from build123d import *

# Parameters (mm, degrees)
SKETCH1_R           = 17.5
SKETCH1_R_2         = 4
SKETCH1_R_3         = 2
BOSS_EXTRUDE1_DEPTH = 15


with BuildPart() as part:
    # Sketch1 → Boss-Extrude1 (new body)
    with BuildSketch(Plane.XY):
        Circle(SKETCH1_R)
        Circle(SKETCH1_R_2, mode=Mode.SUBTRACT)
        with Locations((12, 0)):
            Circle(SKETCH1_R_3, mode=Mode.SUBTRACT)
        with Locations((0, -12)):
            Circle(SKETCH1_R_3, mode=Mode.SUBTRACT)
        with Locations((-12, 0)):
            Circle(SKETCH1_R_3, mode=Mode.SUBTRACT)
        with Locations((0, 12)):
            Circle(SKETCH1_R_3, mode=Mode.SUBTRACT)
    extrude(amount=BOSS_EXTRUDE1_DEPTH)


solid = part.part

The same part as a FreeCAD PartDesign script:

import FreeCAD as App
import Part
import Sketcher
from FreeCAD import Vector
Q = App.Units.Quantity

doc = App.newDocument("Part")
body = doc.addObject("PartDesign::Body", "Body")

# Sketch on XY plane
sketch1 = body.newObject("Sketcher::SketchObject", "Sketch")
sketch1.AttachmentSupport = (doc.getObject("XY_Plane"), [""])
sketch1.MapMode = "FlatFace"
sketch1.addGeometry([
    Part.Circle(Vector(0, 0, 0), Vector(0, 0, 1), 17.5),  # 0
    Part.Circle(Vector(0, -12, 0), Vector(0, 0, 1), 2),  # 1
    Part.Circle(Vector(-12, 0, 0), Vector(0, 0, 1), 2),  # 2
    Part.Circle(Vector(0, 0, 0), Vector(0, 0, 1), 4),  # 3
    Part.Circle(Vector(12, 0, 0), Vector(0, 0, 1), 2),  # 4
    Part.Circle(Vector(0, 12, 0), Vector(0, 0, 1), 2),  # 5
], False)
sketch1.addConstraint([
    Sketcher.Constraint("Coincident", 0, 3, -1, 1),
    Sketcher.Constraint("Coincident", 3, 3, -1, 1),
    Sketcher.Constraint("Equal", 1, 2),
    Sketcher.Constraint("Equal", 2, 4),
    Sketcher.Constraint("Equal", 4, 5),
    Sketcher.Constraint("Symmetric", 2, 3, 4, 3, -1, 1),
    Sketcher.Constraint("Symmetric", 1, 3, 5, 3, -1, 1),
    Sketcher.Constraint("PointOnObject", 1, 3, -2),
    Sketcher.Constraint("PointOnObject", 2, 3, -1),
    Sketcher.Constraint("Diameter", 0, Q("35 mm")),
    Sketcher.Constraint("Diameter", 1, Q("4 mm")),
    Sketcher.Constraint("Diameter", 3, Q("8 mm")),
    Sketcher.Constraint("DistanceY", 1, 3, -1, 1, Q("12 mm")),
    Sketcher.Constraint("DistanceX", 2, 3, -1, 1, Q("12 mm")),
])
pad1 = body.newObject("PartDesign::Pad", "Pad")
pad1.Profile = sketch1
pad1.Length = 15

doc.recompute()
